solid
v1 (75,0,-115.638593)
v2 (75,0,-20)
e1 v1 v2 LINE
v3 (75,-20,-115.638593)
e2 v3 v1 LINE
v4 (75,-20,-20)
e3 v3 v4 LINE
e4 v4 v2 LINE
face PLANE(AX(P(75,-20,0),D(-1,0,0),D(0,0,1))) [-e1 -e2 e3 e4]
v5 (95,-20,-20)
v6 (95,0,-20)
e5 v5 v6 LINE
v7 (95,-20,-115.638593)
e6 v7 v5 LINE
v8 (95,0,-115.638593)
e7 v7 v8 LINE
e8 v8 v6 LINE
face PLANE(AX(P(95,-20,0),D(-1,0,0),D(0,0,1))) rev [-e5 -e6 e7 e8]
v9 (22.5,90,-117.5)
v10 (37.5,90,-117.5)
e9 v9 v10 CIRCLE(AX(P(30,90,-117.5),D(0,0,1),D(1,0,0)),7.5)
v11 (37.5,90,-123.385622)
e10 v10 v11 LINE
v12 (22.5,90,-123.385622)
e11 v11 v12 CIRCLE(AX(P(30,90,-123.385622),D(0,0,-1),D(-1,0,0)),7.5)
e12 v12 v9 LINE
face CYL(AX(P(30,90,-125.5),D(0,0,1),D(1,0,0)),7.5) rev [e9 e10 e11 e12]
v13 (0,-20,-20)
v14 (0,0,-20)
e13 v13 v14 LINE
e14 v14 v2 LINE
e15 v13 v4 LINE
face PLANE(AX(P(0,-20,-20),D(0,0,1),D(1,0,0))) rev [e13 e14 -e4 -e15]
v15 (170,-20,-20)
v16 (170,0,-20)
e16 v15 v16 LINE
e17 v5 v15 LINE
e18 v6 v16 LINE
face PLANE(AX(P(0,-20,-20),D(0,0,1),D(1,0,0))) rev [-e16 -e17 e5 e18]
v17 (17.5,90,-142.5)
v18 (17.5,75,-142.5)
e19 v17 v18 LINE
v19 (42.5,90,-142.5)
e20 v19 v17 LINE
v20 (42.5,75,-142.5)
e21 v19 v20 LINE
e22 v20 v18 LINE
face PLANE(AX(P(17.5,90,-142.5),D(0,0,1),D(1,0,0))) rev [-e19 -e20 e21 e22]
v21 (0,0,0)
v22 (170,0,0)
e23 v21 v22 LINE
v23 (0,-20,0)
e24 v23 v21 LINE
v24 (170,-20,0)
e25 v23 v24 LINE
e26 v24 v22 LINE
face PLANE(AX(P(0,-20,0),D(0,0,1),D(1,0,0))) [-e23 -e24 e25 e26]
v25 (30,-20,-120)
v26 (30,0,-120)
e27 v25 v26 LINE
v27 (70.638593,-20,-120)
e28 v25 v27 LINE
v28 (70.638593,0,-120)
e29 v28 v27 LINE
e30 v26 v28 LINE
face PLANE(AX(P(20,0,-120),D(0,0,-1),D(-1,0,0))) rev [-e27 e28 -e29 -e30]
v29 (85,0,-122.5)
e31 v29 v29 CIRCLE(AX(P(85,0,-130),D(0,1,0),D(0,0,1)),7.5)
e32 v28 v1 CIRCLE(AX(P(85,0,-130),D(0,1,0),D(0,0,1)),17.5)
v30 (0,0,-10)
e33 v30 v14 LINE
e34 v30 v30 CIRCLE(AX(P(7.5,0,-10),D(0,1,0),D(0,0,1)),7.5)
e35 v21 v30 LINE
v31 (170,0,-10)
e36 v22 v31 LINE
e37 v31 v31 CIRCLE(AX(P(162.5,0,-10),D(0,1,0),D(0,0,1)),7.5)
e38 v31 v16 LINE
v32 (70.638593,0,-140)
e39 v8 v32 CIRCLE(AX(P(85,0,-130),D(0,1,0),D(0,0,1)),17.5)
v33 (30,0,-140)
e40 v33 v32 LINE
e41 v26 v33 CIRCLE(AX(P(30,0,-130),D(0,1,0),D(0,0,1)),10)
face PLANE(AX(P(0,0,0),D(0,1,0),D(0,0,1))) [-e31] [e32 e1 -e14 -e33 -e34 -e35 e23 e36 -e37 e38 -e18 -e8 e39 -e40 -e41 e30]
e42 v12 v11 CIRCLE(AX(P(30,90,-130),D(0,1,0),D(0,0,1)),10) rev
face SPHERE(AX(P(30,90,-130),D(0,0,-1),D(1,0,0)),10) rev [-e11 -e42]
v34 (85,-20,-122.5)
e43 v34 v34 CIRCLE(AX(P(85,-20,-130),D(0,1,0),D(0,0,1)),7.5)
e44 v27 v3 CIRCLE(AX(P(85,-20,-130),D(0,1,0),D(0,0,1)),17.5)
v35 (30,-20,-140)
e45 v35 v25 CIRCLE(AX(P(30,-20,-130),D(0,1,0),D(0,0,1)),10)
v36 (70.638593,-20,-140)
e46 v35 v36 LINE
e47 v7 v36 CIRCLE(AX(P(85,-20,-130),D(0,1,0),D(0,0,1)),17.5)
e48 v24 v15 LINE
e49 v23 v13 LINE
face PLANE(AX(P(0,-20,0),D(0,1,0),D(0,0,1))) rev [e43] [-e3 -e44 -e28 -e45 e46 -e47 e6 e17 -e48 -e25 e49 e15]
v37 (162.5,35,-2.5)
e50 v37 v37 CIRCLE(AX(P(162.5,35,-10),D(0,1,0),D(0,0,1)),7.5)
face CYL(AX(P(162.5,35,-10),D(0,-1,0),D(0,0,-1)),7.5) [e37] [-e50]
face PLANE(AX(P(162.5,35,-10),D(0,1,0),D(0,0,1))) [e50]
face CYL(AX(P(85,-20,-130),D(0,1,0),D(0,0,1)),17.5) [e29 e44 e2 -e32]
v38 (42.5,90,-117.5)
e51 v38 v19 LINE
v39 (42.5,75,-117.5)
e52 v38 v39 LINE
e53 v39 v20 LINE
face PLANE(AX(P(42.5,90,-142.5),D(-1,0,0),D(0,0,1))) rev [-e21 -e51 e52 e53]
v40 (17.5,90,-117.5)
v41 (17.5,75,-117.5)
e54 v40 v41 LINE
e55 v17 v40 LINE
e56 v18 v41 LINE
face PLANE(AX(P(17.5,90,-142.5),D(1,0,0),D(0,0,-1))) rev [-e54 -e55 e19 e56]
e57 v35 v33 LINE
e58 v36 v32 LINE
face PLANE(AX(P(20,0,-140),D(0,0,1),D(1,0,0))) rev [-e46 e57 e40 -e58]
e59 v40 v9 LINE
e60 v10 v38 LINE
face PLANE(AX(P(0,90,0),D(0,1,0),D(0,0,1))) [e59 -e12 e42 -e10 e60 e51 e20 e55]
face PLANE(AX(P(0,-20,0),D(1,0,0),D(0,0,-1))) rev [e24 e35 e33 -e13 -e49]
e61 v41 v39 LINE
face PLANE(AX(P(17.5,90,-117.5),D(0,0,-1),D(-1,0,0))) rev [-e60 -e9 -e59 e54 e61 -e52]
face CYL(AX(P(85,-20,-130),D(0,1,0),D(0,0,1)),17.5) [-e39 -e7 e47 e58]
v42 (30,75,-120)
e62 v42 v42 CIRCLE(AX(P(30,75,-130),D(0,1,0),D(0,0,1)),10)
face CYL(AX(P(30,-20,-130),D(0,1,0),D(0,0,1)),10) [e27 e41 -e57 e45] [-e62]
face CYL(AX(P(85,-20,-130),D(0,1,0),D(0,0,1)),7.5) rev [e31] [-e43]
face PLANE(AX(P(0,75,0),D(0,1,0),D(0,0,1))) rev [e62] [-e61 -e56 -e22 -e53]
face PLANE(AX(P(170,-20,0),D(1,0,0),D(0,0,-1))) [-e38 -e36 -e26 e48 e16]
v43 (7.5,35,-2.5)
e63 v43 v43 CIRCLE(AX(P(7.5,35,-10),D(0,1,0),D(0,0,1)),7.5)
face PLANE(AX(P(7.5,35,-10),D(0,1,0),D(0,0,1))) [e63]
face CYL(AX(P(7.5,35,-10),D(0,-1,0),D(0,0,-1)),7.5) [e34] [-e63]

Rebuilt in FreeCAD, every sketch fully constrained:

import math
import FreeCAD as App
import Part
import Sketcher
from FreeCAD import Vector
Q = App.Units.Quantity

doc = App.newDocument("Part")
body = doc.addObject("PartDesign::Body", "Body")

# Sketch on XZ plane
sketch1 = body.newObject("Sketcher::SketchObject", "Sketch")
sketch1.AttachmentSupport = (doc.getObject("XZ_Plane"), [""])
sketch1.MapMode = "FlatFace"
sketch1.addGeometry([
    Part.LineSegment(Vector(0, 0, 0), Vector(170, 0, 0)),  # 0
    Part.LineSegment(Vector(170, 0, 0), Vector(170, -20, 0)),  # 1
    Part.LineSegment(Vector(170, -20, 0), Vector(95, -20, 0)),  # 2
    Part.LineSegment(Vector(95, -20, 0), Vector(95, -116, 0)),  # 3
    Part.ArcOfCircle(Part.Circle(Vector(85, -130, 0), Vector(0, 0, 1), 18), math.radians(125), math.radians(415)),  # 4
    Part.LineSegment(Vector(75, -116, 0), Vector(75, -20, 0)),  # 5
    Part.LineSegment(Vector(75, -20, 0), Vector(0, -20, 0)),  # 6
    Part.LineSegment(Vector(0, -20, 0), Vector(0, 0, 0)),  # 7
    Part.Circle(Vector(85, -130, 0), Vector(0, 0, 1), 8),  # 8
], False)
sketch1.addConstraint([
    Sketcher.Constraint("Coincident", 0, 2, 1, 1),
    Sketcher.Constraint("Coincident", 1, 2, 2, 1),
    Sketcher.Constraint("Coincident", 2, 2, 3, 1),
    Sketcher.Constraint("Coincident", 3, 2, 4, 2),
    Sketcher.Constraint("Coincident", 4, 1, 5, 1),
    Sketcher.Constraint("Coincident", 5, 2, 6, 1),
    Sketcher.Constraint("Coincident", 6, 2, 7, 1),
    Sketcher.Constraint("Coincident", 7, 2, 0, 1),
    Sketcher.Constraint("Horizontal", 0),
    Sketcher.Constraint("Vertical", 1),
    Sketcher.Constraint("Horizontal", 2),
    Sketcher.Constraint("Vertical", 3),
    Sketcher.Constraint("Vertical", 5),
    Sketcher.Constraint("Horizontal", 6),
    Sketcher.Constraint("Vertical", 7),
    Sketcher.Constraint("Coincident", 7, 2, -1, 1),
    Sketcher.Constraint("Coincident", 8, 3, 4, 3),
    Sketcher.Constraint("Horizontal", 3, 2, 4, 1),
    Sketcher.Constraint("Horizontal", 2, 2, 5, 2),
    Sketcher.Constraint("Equal", 2, 6),
    Sketcher.Constraint("Diameter", 8, Q("15 mm")),
    Sketcher.Constraint("Radius", 4, Q("17.5 mm")),
    Sketcher.Constraint("DistanceX", 0, 1, 0, 2, Q("170 mm")),
    Sketcher.Constraint("DistanceX", 2, 2, 2, 1, Q("75 mm")),
    Sketcher.Constraint("DistanceY", 1, 2, 1, 1, Q("20 mm")),
    Sketcher.Constraint("DistanceY", 4, 3, -1, 1, Q("130 mm")),
])
pad1 = body.newObject("PartDesign::Pad", "Pad")
pad1.Profile = sketch1
pad1.Length = 20

# Sketch on XZ plane
sketch2 = body.newObject("Sketcher::SketchObject", "Sketch001")
sketch2.AttachmentSupport = (doc.getObject("XZ_Plane"), [""])
sketch2.MapMode = "FlatFace"
sketch2.addGeometry([
    Part.Circle(Vector(8, -10, 0), Vector(0, 0, 1), 8),
    Part.Circle(Vector(162, -10, 0), Vector(0, 0, 1), 8),
], False)
sketch2.addConstraint([
    Sketcher.Constraint("Equal", 0, 1),
    Sketcher.Constraint("Horizontal", 0, 3, 1, 3),
    Sketcher.Constraint("Diameter", 0, Q("15 mm")),
    Sketcher.Constraint("DistanceY", 0, 3, -1, 1, Q("10 mm")),
    Sketcher.Constraint("DistanceX", 0, 3, 1, 3, Q("155 mm")),
    Sketcher.Constraint("DistanceX", -1, 1, 0, 3, Q("7.5 mm")),
])
pad2 = body.newObject("PartDesign::Pad", "Pad001")
pad2.Profile = sketch2
pad2.Length = 35
pad2.Reversed = True

# Sketch on YZ plane
sketch3 = body.newObject("Sketcher::SketchObject", "Sketch002")
sketch3.AttachmentSupport = (doc.getObject("YZ_Plane"), [""])
sketch3.MapMode = "FlatFace"
sketch3.AttachmentOffset = App.Placement(Vector(0, 0, 75), App.Rotation())
sketch3.addGeometry([
    Part.LineSegment(Vector(0, -140, 0), Vector(-20, -140, 0)),
    Part.LineSegment(Vector(-20, -140, 0), Vector(-20, -120, 0)),
    Part.LineSegment(Vector(-20, -120, 0), Vector(0, -120, 0)),
    Part.LineSegment(Vector(0, -120, 0), Vector(0, -140, 0)),
], False)
sketch3.addConstraint([
    Sketcher.Constraint("Coincident", 0, 2, 1, 1),
    Sketcher.Constraint("Coincident", 1, 2, 2, 1),
    Sketcher.Constraint("Coincident", 2, 2, 3, 1),
    Sketcher.Constraint("Coincident", 3, 2, 0, 1),
    Sketcher.Constraint("Horizontal", 0),
    Sketcher.Constraint("Vertical", 1),
    Sketcher.Constraint("Horizontal", 2),
    Sketcher.Constraint("Vertical", 3),
    Sketcher.Constraint("PointOnObject", 2, 2, -2),
    Sketcher.Constraint("Equal", 2, 1),
    Sketcher.Constraint("DistanceX", 0, 2, 0, 1, Q("20 mm")),
    Sketcher.Constraint("DistanceY", 0, 2, -1, 1, Q("140 mm")),
])
pad3 = body.newObject("PartDesign::Pad", "Pad002")
pad3.Profile = sketch3
pad3.Length = 55
pad3.Reversed = True

# Sketch on XZ plane
sketch4 = body.newObject("Sketcher::SketchObject", "Sketch003")
sketch4.AttachmentSupport = (doc.getObject("XZ_Plane"), [""])
sketch4.MapMode = "FlatFace"
sketch4.addGeometry([
    Part.LineSegment(Vector(20, -130, 0), Vector(20, -120, 0)),  # 0
    Part.LineSegment(Vector(20, -120, 0), Vector(30, -120, 0)),  # 1
    Part.ArcOfCircle(Part.Circle(Vector(30, -130, 0), Vector(0, 0, 1), 10), math.radians(90), math.radians(180)),  # 2
    Part.LineSegment(Vector(20, -140, 0), Vector(20, -130, 0)),  # 3
    Part.ArcOfCircle(Part.Circle(Vector(30, -130, 0), Vector(0, 0, 1), 10), math.radians(180), math.radians(270)),  # 4
    Part.LineSegment(Vector(30, -140, 0), Vector(20, -140, 0)),  # 5
], False)
sketch4.addConstraint([
    Sketcher.Constraint("Coincident", 0, 2, 1, 1),
    Sketcher.Constraint("Tangent", 1, 2, 2, 1),
    Sketcher.Constraint("Tangent", 2, 2, 0, 1),
    Sketcher.Constraint("Tangent", 3, 2, 4, 1),
    Sketcher.Constraint("Tangent", 4, 2, 5, 1),
    Sketcher.Constraint("Coincident", 5, 2, 3, 1),
    Sketcher.Constraint("Vertical", 0),
    Sketcher.Constraint("Horizontal", 1),
    Sketcher.Constraint("Vertical", 3),
    Sketcher.Constraint("Horizontal", 5),
    Sketcher.Constraint("Coincident", 4, 3, 2, 3),
    Sketcher.Constraint("Equal", 2, 4),
    Sketcher.Constraint("Radius", 2, Q("10 mm")),
    Sketcher.Constraint("DistanceX", -1, 1, 2, 3, Q("30 mm")),
    Sketcher.Constraint("DistanceY", 2, 3, -1, 1, Q("130 mm")),
])
pocket1 = body.newObject("PartDesign::Pocket", "Pocket")
pocket1.Profile = sketch4
pocket1.Type = "ThroughAll"
pocket1.Reversed = True

# Sketch on XZ plane
sketch5 = body.newObject("Sketcher::SketchObject", "Sketch004")
sketch5.AttachmentSupport = (doc.getObject("XZ_Plane"), [""])
sketch5.MapMode = "FlatFace"
sketch5.AttachmentOffset = App.Placement(Vector(0, 0, -75), App.Rotation())
sketch5.addGeometry(Part.Circle(Vector(30, -130, 0), Vector(0, 0, 1), 10), False)
sketch5.addConstraint([
    Sketcher.Constraint("Diameter", 0, Q("20 mm")),
    Sketcher.Constraint("DistanceX", -1, 1, 0, 3, Q("30 mm")),
    Sketcher.Constraint("DistanceY", 0, 3, -1, 1, Q("130 mm")),
])
pad4 = body.newObject("PartDesign::Pad", "Pad003")
pad4.Profile = sketch5
pad4.Length = 75

# Sketch on XZ plane
sketch6 = body.newObject("Sketcher::SketchObject", "Sketch005")
sketch6.AttachmentSupport = (doc.getObject("XZ_Plane"), [""])
sketch6.MapMode = "FlatFace"
sketch6.AttachmentOffset = App.Placement(Vector(0, 0, -75), App.Rotation())
sketch6.addGeometry([
    Part.LineSegment(Vector(18, -142, 0), Vector(18, -118, 0)),
    Part.LineSegment(Vector(18, -118, 0), Vector(42, -118, 0)),
    Part.LineSegment(Vector(42, -118, 0), Vector(42, -142, 0)),
    Part.LineSegment(Vector(42, -142, 0), Vector(18, -142, 0)),
], False)
sketch6.addConstraint([
    Sketcher.Constraint("Coincident", 0, 2, 1, 1),
    Sketcher.Constraint("Coincident", 1, 2, 2, 1),
    Sketcher.Constraint("Coincident", 2, 2, 3, 1),
    Sketcher.Constraint("Coincident", 3, 2, 0, 1),
    Sketcher.Constraint("Vertical", 0),
    Sketcher.Constraint("Horizontal", 1),
    Sketcher.Constraint("Vertical", 2),
    Sketcher.Constraint("Horizontal", 3),
    Sketcher.Constraint("Equal", 3, 0),
    Sketcher.Constraint("DistanceX", 1, 1, 1, 2, Q("25 mm")),
    Sketcher.Constraint("DistanceX", -1, 1, 0, 2, Q("17.5 mm")),
    Sketcher.Constraint("DistanceY", 0, 2, -1, 1, Q("117.5 mm")),
])
pad5 = body.newObject("PartDesign::Pad", "Pad004")
pad5.Profile = sketch6
pad5.Length = 15
pad5.Reversed = True

# Sketch on XZ plane
sketch7 = body.newObject("Sketcher::SketchObject", "Sketch006")
sketch7.AttachmentSupport = (doc.getObject("XZ_Plane"), [""])
sketch7.MapMode = "FlatFace"
sketch7.AttachmentOffset = App.Placement(Vector(0, 0, -90), App.Rotation())
sketch7.addGeometry([
    Part.LineSegment(Vector(30, -140, 0), Vector(30, -120, 0)),
    Part.ArcOfCircle(Part.Circle(Vector(30, -130, 0), Vector(0, 0, 1), 10), math.radians(-90), math.radians(90)),
], False)
sketch7.addGeometry(Part.LineSegment(Vector(30, -140, 0), Vector(30, -120, 0)), True)  # axis
sketch7.addConstraint([
    Sketcher.Constraint("Coincident", 0, 1, 1, 1),
    Sketcher.Constraint("Coincident", 1, 2, 0, 2),
    Sketcher.Constraint("Vertical", 0),
    Sketcher.Constraint("Vertical", 2),
    Sketcher.Constraint("Coincident", 2, 1, 0, 1),
    Sketcher.Constraint("Vertical", 1, 3, 0, 1),
    Sketcher.Constraint("Equal", 0, 2),
    Sketcher.Constraint("Radius", 1, Q("10 mm")),
    Sketcher.Constraint("DistanceX", -1, 1, 1, 3, Q("30 mm")),
    Sketcher.Constraint("DistanceY", 1, 3, -1, 1, Q("130 mm")),
])
groove = body.newObject("PartDesign::Groove", "Groove")
groove.Profile = sketch7
groove.ReferenceAxis = (sketch7, ["Axis0"])
groove.Angle = 360

# Sketch on XY plane
sketch8 = body.newObject("Sketcher::SketchObject", "Sketch007")
sketch8.AttachmentSupport = (doc.getObject("XY_Plane"), [""])
sketch8.MapMode = "FlatFace"
sketch8.AttachmentOffset = App.Placement(Vector(0, 0, -117.5), App.Rotation())
sketch8.addGeometry(Part.Circle(Vector(30, 90, 0), Vector(0, 0, 1), 8), False)
sketch8.addConstraint([
    Sketcher.Constraint("Diameter", 0, Q("15 mm")),
    Sketcher.Constraint("DistanceX", -1, 1, 0, 3, Q("30 mm")),
    Sketcher.Constraint("DistanceY", -1, 1, 0, 3, Q("90 mm")),
])
pocket2 = body.newObject("PartDesign::Pocket", "Pocket001")
pocket2.Profile = sketch8
pocket2.Length = 8

doc.recompute()
